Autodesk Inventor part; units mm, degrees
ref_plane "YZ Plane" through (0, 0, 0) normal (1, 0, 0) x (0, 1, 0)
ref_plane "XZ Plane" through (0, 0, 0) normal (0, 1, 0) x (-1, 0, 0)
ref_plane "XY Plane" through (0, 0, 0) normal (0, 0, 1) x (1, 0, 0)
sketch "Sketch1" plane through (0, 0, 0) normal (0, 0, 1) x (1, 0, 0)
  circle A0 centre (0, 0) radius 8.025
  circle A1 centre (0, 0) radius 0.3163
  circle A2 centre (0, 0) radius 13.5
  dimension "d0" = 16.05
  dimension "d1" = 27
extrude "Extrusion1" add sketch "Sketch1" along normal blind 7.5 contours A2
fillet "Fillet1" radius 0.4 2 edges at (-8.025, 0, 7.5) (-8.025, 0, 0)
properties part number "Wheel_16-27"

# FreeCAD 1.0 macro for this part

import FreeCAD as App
import Part
import Sketcher
Q = App.Units.Quantity


def edges_at(feature, points):
    """Names of the edges that pass closest to the given points."""
    edges = feature.Shape.Edges
    near = lambda p: min(range(len(edges)), key=lambda i: edges[i].distToShape(Part.Vertex(*p))[0])
    return sorted({f"Edge{near(p) + 1}" for p in points})

doc = App.newDocument("Part")
body = doc.addObject("PartDesign::Body", "Body")

# Sketch on XY plane
sketch1 = doc.addObject("Sketcher::SketchObject", "Sketch")
body.addObject(sketch1)
sketch1.AttachmentSupport = (doc.XY_Plane, [""])
sketch1.MapMode = "FlatFace"
sketch1.addGeometry(Part.Circle(App.Vector(0, 0, 0), App.Vector(0, 0, 1), 13.5), False)
sketch1.addGeometry(Part.Circle(App.Vector(0, 0, 0), App.Vector(0, 0, 1), 8.025), False)
sketch1.addConstraint(Sketcher.Constraint("Coincident", 0, 3, -1, 1))
sketch1.addConstraint(Sketcher.Constraint("Coincident", 1, 3, -1, 1))
sketch1.addConstraint(Sketcher.Constraint("Diameter", 0, Q("27 mm")))
sketch1.addConstraint(Sketcher.Constraint("Diameter", 1, Q("16.05 mm")))
pad1 = doc.addObject("PartDesign::Pad", "Pad")
body.addObject(pad1)
pad1.Profile = sketch1
pad1.Length = 7.5
doc.recompute()

fillet = doc.addObject("PartDesign::Fillet", "Fillet")
body.addObject(fillet)
fillet.Base = (pad1, edges_at(pad1, [(-8.025, 0, 7.5), (-8.025, 0, 0)]))
fillet.Radius = 0.4

doc.recompute()
